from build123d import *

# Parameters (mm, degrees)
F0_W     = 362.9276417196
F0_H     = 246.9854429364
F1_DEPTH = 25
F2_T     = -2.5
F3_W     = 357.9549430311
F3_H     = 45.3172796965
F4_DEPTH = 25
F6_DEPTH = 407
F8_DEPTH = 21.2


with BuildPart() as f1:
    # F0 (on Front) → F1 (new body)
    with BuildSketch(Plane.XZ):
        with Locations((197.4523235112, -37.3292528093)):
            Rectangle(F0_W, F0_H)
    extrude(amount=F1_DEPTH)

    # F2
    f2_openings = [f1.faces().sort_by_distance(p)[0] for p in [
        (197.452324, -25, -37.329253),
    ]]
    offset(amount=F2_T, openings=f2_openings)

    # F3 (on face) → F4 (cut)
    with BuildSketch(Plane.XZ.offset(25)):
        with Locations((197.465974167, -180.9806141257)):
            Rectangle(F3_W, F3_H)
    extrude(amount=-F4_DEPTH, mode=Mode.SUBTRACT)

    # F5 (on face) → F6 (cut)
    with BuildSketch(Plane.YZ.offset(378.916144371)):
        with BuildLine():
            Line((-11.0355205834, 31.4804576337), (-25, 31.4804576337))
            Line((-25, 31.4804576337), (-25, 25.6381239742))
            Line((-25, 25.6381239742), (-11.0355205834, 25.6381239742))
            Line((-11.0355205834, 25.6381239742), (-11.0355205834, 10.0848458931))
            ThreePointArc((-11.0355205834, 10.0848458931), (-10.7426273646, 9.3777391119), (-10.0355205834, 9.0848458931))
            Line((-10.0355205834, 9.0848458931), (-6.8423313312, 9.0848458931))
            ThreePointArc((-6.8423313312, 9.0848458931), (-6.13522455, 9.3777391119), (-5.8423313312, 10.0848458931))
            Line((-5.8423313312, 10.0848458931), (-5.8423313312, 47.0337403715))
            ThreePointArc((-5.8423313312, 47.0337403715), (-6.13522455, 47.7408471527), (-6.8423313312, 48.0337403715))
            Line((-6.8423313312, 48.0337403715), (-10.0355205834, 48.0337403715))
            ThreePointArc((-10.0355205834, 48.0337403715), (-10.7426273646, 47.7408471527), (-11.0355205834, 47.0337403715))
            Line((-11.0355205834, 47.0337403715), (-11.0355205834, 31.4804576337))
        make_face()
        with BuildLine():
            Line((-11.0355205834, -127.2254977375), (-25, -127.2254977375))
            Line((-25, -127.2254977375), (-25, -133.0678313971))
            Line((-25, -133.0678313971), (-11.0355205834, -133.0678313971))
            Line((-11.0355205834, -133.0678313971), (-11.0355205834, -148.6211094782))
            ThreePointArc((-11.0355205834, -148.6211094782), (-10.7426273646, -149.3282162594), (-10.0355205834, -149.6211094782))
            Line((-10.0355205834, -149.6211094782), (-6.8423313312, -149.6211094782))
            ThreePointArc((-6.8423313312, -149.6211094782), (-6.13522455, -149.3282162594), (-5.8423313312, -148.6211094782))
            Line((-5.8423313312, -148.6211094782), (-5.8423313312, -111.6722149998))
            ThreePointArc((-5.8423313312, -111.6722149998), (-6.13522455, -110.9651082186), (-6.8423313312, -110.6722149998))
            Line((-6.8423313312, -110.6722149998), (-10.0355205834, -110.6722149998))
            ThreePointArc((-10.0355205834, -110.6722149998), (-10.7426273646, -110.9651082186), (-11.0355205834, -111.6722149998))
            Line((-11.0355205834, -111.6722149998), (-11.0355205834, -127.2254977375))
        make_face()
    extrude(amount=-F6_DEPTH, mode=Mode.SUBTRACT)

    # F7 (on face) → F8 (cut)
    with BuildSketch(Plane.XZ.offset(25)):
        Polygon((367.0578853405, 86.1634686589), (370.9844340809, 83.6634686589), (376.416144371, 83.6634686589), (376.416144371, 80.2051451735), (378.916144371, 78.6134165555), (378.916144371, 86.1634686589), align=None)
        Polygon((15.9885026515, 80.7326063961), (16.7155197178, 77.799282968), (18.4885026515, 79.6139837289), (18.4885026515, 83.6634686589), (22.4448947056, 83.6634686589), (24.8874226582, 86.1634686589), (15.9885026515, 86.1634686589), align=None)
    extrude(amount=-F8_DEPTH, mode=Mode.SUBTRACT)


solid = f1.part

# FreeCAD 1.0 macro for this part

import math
import FreeCAD as App
import Part
import Sketcher

V = App.Vector


def faces_at(feature, points):
    """Names of the faces that lie closest to the given points."""
    faces = feature.Shape.Faces
    near = lambda p: min(range(len(faces)), key=lambda i: faces[i].distToShape(Part.Vertex(*p))[0])
    return sorted({f"Face{near(p) + 1}" for p in points})

doc = App.newDocument("Part")
params = doc.addObject("Spreadsheet::Sheet", "Params")
for row, (alias, value) in enumerate([
    ("pad1_length", "25 mm"),
    ("thickness_wall", "2.5 mm"),
    ("pocket1_length", "25 mm"),
    ("sketch3_radius", "1 mm"),
    ("pocket2_length", "407 mm"),
    ("pocket3_length", "21.2 mm"),
], start=1):
    params.set(f"A{row}", alias)
    params.set(f"B{row}", "=" + value)
    params.setAlias(f"B{row}", alias)

body = doc.addObject("PartDesign::Body", "Body")

sketch1 = doc.addObject("Sketcher::SketchObject", "Sketch")
body.addObject(sketch1)
sketch1.AttachmentSupport = (doc.XZ_Plane, [""])
sketch1.MapMode = "FlatFace"
sketch1.addGeometry(Part.LineSegment(V(15.988503, 86.163469, 0), V(15.988503, -160.821974, 0)), False)
sketch1.addGeometry(Part.LineSegment(V(15.988503, -160.821974, 0), V(378.916144, -160.821974, 0)), False)
sketch1.addGeometry(Part.LineSegment(V(378.916144, -160.821974, 0), V(378.916144, 86.163469, 0)), False)
sketch1.addGeometry(Part.LineSegment(V(378.916144, 86.163469, 0), V(15.988503, 86.163469, 0)), False)
sketch1.addConstraint(Sketcher.Constraint("Coincident", 0, 2, 1, 1))
sketch1.addConstraint(Sketcher.Constraint("Coincident", 1, 2, 2, 1))
sketch1.addConstraint(Sketcher.Constraint("Coincident", 2, 2, 3, 1))
sketch1.addConstraint(Sketcher.Constraint("Coincident", 3, 2, 0, 1))
sketch1.addConstraint(Sketcher.Constraint("Vertical", 0))
sketch1.addConstraint(Sketcher.Constraint("Horizontal", 1))
sketch1.addConstraint(Sketcher.Constraint("Vertical", 2))
sketch1.addConstraint(Sketcher.Constraint("Horizontal", 3))
sketch1.addConstraint(Sketcher.Constraint("DistanceX", 1, 1, 1, 2, 362.927642))
sketch1.addConstraint(Sketcher.Constraint("DistanceY", 0, 2, 0, 1, 246.985443))
sketch1.addConstraint(Sketcher.Constraint("DistanceY", -1, 1, 2, 2, 86.163469))
sketch1.addConstraint(Sketcher.Constraint("DistanceX", -1, 1, 0, 2, 15.988503))
pad1 = doc.addObject("PartDesign::Pad", "Pad")
body.addObject(pad1)
pad1.Profile = sketch1
pad1.setExpression("Length", "Params.pad1_length")
doc.recompute()

thickness = doc.addObject("PartDesign::Thickness", "Thickness")
body.addObject(thickness)
thickness.Base = (pad1, faces_at(pad1, [(197.452, -25, -37.329)]))
thickness.setExpression("Value", "Params.thickness_wall")
thickness.Reversed = True
thickness.Join = "Arc"

sketch2 = doc.addObject("Sketcher::SketchObject", "Sketch001")
body.addObject(sketch2)
sketch2.AttachmentSupport = (doc.XZ_Plane, [""])
sketch2.MapMode = "FlatFace"
sketch2.AttachmentOffset = App.Placement(V(0, 0, 25), App.Rotation())
sketch2.addGeometry(Part.LineSegment(V(18.488503, -158.321974, 0), V(18.488503, -203.639254, 0)), False)
sketch2.addGeometry(Part.LineSegment(V(18.488503, -203.639254, 0), V(376.443446, -203.639254, 0)), False)
sketch2.addGeometry(Part.LineSegment(V(376.443446, -203.639254, 0), V(376.443446, -158.321974, 0)), False)
sketch2.addGeometry(Part.LineSegment(V(376.443446, -158.321974, 0), V(18.488503, -158.321974, 0)), False)
sketch2.addConstraint(Sketcher.Constraint("Coincident", 0, 2, 1, 1))
sketch2.addConstraint(Sketcher.Constraint("Coincident", 1, 2, 2, 1))
sketch2.addConstraint(Sketcher.Constraint("Coincident", 2, 2, 3, 1))
sketch2.addConstraint(Sketcher.Constraint("Coincident", 3, 2, 0, 1))
sketch2.addConstraint(Sketcher.Constraint("Vertical", 0))
sketch2.addConstraint(Sketcher.Constraint("Horizontal", 1))
sketch2.addConstraint(Sketcher.Constraint("Vertical", 2))
sketch2.addConstraint(Sketcher.Constraint("Horizontal", 3))
sketch2.addConstraint(Sketcher.Constraint("DistanceY", 0, 2, 0, 1, 45.31728))
sketch2.addConstraint(Sketcher.Constraint("DistanceX", 1, 1, 1, 2, 357.954943))
sketch2.addConstraint(Sketcher.Constraint("DistanceX", -1, 1, 0, 2, 18.488503))
sketch2.addConstraint(Sketcher.Constraint("DistanceY", 0, 2, -1, 1, 203.639254))
pocket1 = doc.addObject("PartDesign::Pocket", "Pocket")
body.addObject(pocket1)
pocket1.Profile = sketch2
pocket1.setExpression("Length", "Params.pocket1_length")

sketch3 = doc.addObject("Sketcher::SketchObject", "Sketch002")
body.addObject(sketch3)
sketch3.AttachmentSupport = (doc.YZ_Plane, [""])
sketch3.MapMode = "FlatFace"
sketch3.AttachmentOffset = App.Placement(V(0, 0, 378.916144), App.Rotation())
sketch3.addGeometry(Part.LineSegment(V(-11.035521, 31.480458, 0), V(-25, 31.480458, 0)), False)
sketch3.addGeometry(Part.LineSegment(V(-25, 31.480458, 0), V(-25, 25.638124, 0)), False)
sketch3.addGeometry(Part.LineSegment(V(-25, 25.638124, 0), V(-11.035521, 25.638124, 0)), False)
sketch3.addGeometry(Part.LineSegment(V(-11.035521, 25.638124, 0), V(-11.035521, 10.084846, 0)), False)
sketch3.addGeometry(Part.ArcOfCircle(Part.Circle(V(-10.035521, 10.084846, 0), V(0, 0, 1), 1), math.radians(180), math.radians(270)), False)
sketch3.addGeometry(Part.LineSegment(V(-10.035521, 9.084846, 0), V(-6.842331, 9.084846, 0)), False)
sketch3.addGeometry(Part.ArcOfCircle(Part.Circle(V(-6.842331, 10.084846, 0), V(0, 0, 1), 1), math.radians(-90), math.radians(0)), False)
sketch3.addGeometry(Part.LineSegment(V(-5.842331, 10.084846, 0), V(-5.842331, 47.03374, 0)), False)
sketch3.addGeometry(Part.ArcOfCircle(Part.Circle(V(-6.842331, 47.03374, 0), V(0, 0, 1), 1), math.radians(0), math.radians(90)), False)
sketch3.addGeometry(Part.LineSegment(V(-6.842331, 48.03374, 0), V(-10.035521, 48.03374, 0)), False)
sketch3.addGeometry(Part.ArcOfCircle(Part.Circle(V(-10.035521, 47.03374, 0), V(0, 0, 1), 1), math.radians(90), math.radians(180)), False)
sketch3.addGeometry(Part.LineSegment(V(-11.035521, 47.03374, 0), V(-11.035521, 31.480458, 0)), False)
sketch3.addGeometry(Part.LineSegment(V(-11.035521, -127.225498, 0), V(-25, -127.225498, 0)), False)
sketch3.addGeometry(Part.LineSegment(V(-25, -127.225498, 0), V(-25, -133.067831, 0)), False)
sketch3.addGeometry(Part.LineSegment(V(-25, -133.067831, 0), V(-11.035521, -133.067831, 0)), False)
sketch3.addGeometry(Part.LineSegment(V(-11.035521, -133.067831, 0), V(-11.035521, -148.621109, 0)), False)
sketch3.addGeometry(Part.ArcOfCircle(Part.Circle(V(-10.035521, -148.621109, 0), V(0, 0, 1), 1), math.radians(180), math.radians(270)), False)
sketch3.addGeometry(Part.LineSegment(V(-10.035521, -149.621109, 0), V(-6.842331, -149.621109, 0)), False)
sketch3.addGeometry(Part.ArcOfCircle(Part.Circle(V(-6.842331, -148.621109, 0), V(0, 0, 1), 1), math.radians(-90), math.radians(0)), False)
sketch3.addGeometry(Part.LineSegment(V(-5.842331, -148.621109, 0), V(-5.842331, -111.672215, 0)), False)
sketch3.addGeometry(Part.ArcOfCircle(Part.Circle(V(-6.842331, -111.672215, 0), V(0, 0, 1), 1), math.radians(0), math.radians(90)), False)
sketch3.addGeometry(Part.LineSegment(V(-6.842331, -110.672215, 0), V(-10.035521, -110.672215, 0)), False)
sketch3.addGeometry(Part.ArcOfCircle(Part.Circle(V(-10.035521, -111.672215, 0), V(0, 0, 1), 1), math.radians(90), math.radians(180)), False)
sketch3.addGeometry(Part.LineSegment(V(-11.035521, -111.672215, 0), V(-11.035521, -127.225498, 0)), False)
sketch3.addConstraint(Sketcher.Constraint("Coincident", 0, 2, 1, 1))
sketch3.addConstraint(Sketcher.Constraint("Coincident", 1, 2, 2, 1))
sketch3.addConstraint(Sketcher.Constraint("Coincident", 2, 2, 3, 1))
sketch3.addConstraint(Sketcher.Constraint("Tangent", 3, 2, 4, 1))
sketch3.addConstraint(Sketcher.Constraint("Tangent", 4, 2, 5, 1))
sketch3.addConstraint(Sketcher.Constraint("Tangent", 5, 2, 6, 1))
sketch3.addConstraint(Sketcher.Constraint("Tangent", 6, 2, 7, 1))
sketch3.addConstraint(Sketcher.Constraint("Tangent", 7, 2, 8, 1))
sketch3.addConstraint(Sketcher.Constraint("Tangent", 8, 2, 9, 1))
sketch3.addConstraint(Sketcher.Constraint("Tangent", 9, 2, 10, 1))
sketch3.addConstraint(Sketcher.Constraint("Tangent", 10, 2, 11, 1))
sketch3.addConstraint(Sketcher.Constraint("Coincident", 11, 2, 0, 1))
sketch3.addConstraint(Sketcher.Constraint("Coincident", 12, 2, 13, 1))
sketch3.addConstraint(Sketcher.Constraint("Coincident", 13, 2, 14, 1))
sketch3.addConstraint(Sketcher.Constraint("Coincident", 14, 2, 15, 1))
sketch3.addConstraint(Sketcher.Constraint("Tangent", 15, 2, 16, 1))
sketch3.addConstraint(Sketcher.Constraint("Tangent", 16, 2, 17, 1))
sketch3.addConstraint(Sketcher.Constraint("Tangent", 17, 2, 18, 1))
sketch3.addConstraint(Sketcher.Constraint("Tangent", 18, 2, 19, 1))
sketch3.addConstraint(Sketcher.Constraint("Tangent", 19, 2, 20, 1))
sketch3.addConstraint(Sketcher.Constraint("Tangent", 20, 2, 21, 1))
sketch3.addConstraint(Sketcher.Constraint("Tangent", 21, 2, 22, 1))
sketch3.addConstraint(Sketcher.Constraint("Tangent", 22, 2, 23, 1))
sketch3.addConstraint(Sketcher.Constraint("Coincident", 23, 2, 12, 1))
sketch3.addConstraint(Sketcher.Constraint("Horizontal", 0))
sketch3.addConstraint(Sketcher.Constraint("Vertical", 1))
sketch3.addConstraint(Sketcher.Constraint("Horizontal", 2))
sketch3.addConstraint(Sketcher.Constraint("Vertical", 3))
sketch3.addConstraint(Sketcher.Constraint("Horizontal", 5))
sketch3.addConstraint(Sketcher.Constraint("Vertical", 7))
sketch3.addConstraint(Sketcher.Constraint("Horizontal", 9))
sketch3.addConstraint(Sketcher.Constraint("Vertical", 11))
sketch3.addConstraint(Sketcher.Constraint("Horizontal", 12))
sketch3.addConstraint(Sketcher.Constraint("Vertical", 13))
sketch3.addConstraint(Sketcher.Constraint("Horizontal", 14))
sketch3.addConstraint(Sketcher.Constraint("Vertical", 15))
sketch3.addConstraint(Sketcher.Constraint("Horizontal", 17))
sketch3.addConstraint(Sketcher.Constraint("Vertical", 19))
sketch3.addConstraint(Sketcher.Constraint("Horizontal", 21))
sketch3.addConstraint(Sketcher.Constraint("Vertical", 23))
sketch3.addConstraint(Sketcher.Constraint("Equal", 4, 6))
sketch3.addConstraint(Sketcher.Constraint("Equal", 6, 8))
sketch3.addConstraint(Sketcher.Constraint("Equal", 8, 10))
sketch3.addConstraint(Sketcher.Constraint("Equal", 10, 16))
sketch3.addConstraint(Sketcher.Constraint("Equal", 16, 18))
sketch3.addConstraint(Sketcher.Constraint("Equal", 18, 20))
sketch3.addConstraint(Sketcher.Constraint("Equal", 20, 22))
sketch3.addConstraint(Sketcher.Constraint("Vertical", 4, 3, 10, 3))
sketch3.addConstraint(Sketcher.Constraint("Vertical", 10, 3, 16, 3))
sketch3.addConstraint(Sketcher.Constraint("Vertical", 8, 3, 18, 3))
sketch3.addConstraint(Sketcher.Constraint("Vertical", 16, 3, 22, 3))
sketch3.addConstraint(Sketcher.Constraint("Vertical", 1, 2, 12, 2))
sketch3.addConstraint(Sketcher.Constraint("Equal", 1, 13))
sketch3.addConstraint(Sketcher.Constraint("Equal", 3, 15))
sketch3.addConstraint(Sketcher.Constraint("Equal", 7, 19))
sketch3.addConstraint(Sketcher.Constraint("Radius", 4, 1.0))
sketch3.addConstraint(Sketcher.Constraint("DistanceX", 0, 2, -1, 1, 25.0))
sketch3.addConstraint(Sketcher.Constraint("DistanceX", 0, 2, 0, 1, 13.964479))
sketch3.addConstraint(Sketcher.Constraint("DistanceX", 5, 1, 5, 2, 3.193189))
sketch3.addConstraint(Sketcher.Constraint("DistanceY", 3, 2, 3, 1, 15.553278))
sketch3.addConstraint(Sketcher.Constraint("DistanceY", 1, 2, 1, 1, 5.842334))
sketch3.addConstraint(Sketcher.Constraint("DistanceY", 7, 1, 7, 2, 36.948894))
sketch3.addConstraint(Sketcher.Constraint("DistanceY", -1, 1, 8, 3, 47.03374))
sketch3.addConstraint(Sketcher.Constraint("DistanceY", 16, 3, -1, 1, 148.621109))
sketch3.setExpression("Constraints[55]", "Params.sketch3_radius")
pocket2 = doc.addObject("PartDesign::Pocket", "Pocket001")
body.addObject(pocket2)
pocket2.Profile = sketch3
pocket2.setExpression("Length", "Params.pocket2_length")

sketch4 = doc.addObject("Sketcher::SketchObject", "Sketch003")
body.addObject(sketch4)
sketch4.AttachmentSupport = (doc.XZ_Plane, [""])
sketch4.MapMode = "FlatFace"
sketch4.AttachmentOffset = App.Placement(V(0, 0, 25), App.Rotation())
sketch4.addGeometry(Part.LineSegment(V(367.057885, 86.163469, 0), V(370.984434, 83.663469, 0)), False)
sketch4.addGeometry(Part.LineSegment(V(370.984434, 83.663469, 0), V(376.416144, 83.663469, 0)), False)
sketch4.addGeometry(Part.LineSegment(V(376.416144, 83.663469, 0), V(376.416144, 80.205145, 0)), False)
sketch4.addGeometry(Part.LineSegment(V(376.416144, 80.205145, 0), V(378.916144, 78.613417, 0)), False)
sketch4.addGeometry(Part.LineSegment(V(378.916144, 78.613417, 0), V(378.916144, 86.163469, 0)), False)
sketch4.addGeometry(Part.LineSegment(V(378.916144, 86.163469, 0), V(367.057885, 86.163469, 0)), False)
sketch4.addGeometry(Part.LineSegment(V(15.988503, 80.732606, 0), V(16.71552, 77.799283, 0)), False)
sketch4.addGeometry(Part.LineSegment(V(16.71552, 77.799283, 0), V(18.488503, 79.613984, 0)), False)
sketch4.addGeometry(Part.LineSegment(V(18.488503, 79.613984, 0), V(18.488503, 83.663469, 0)), False)
sketch4.addGeometry(Part.LineSegment(V(18.488503, 83.663469, 0), V(22.444895, 83.663469, 0)), False)
sketch4.addGeometry(Part.LineSegment(V(22.444895, 83.663469, 0), V(24.887423, 86.163469, 0)), False)
sketch4.addGeometry(Part.LineSegment(V(24.887423, 86.163469, 0), V(15.988503, 86.163469, 0)), False)
sketch4.addGeometry(Part.LineSegment(V(15.988503, 86.163469, 0), V(15.988503, 80.732606, 0)), False)
sketch4.addConstraint(Sketcher.Constraint("Coincident", 0, 2, 1, 1))
sketch4.addConstraint(Sketcher.Constraint("Coincident", 1, 2, 2, 1))
sketch4.addConstraint(Sketcher.Constraint("Coincident", 2, 2, 3, 1))
sketch4.addConstraint(Sketcher.Constraint("Coincident", 3, 2, 4, 1))
sketch4.addConstraint(Sketcher.Constraint("Coincident", 4, 2, 5, 1))
sketch4.addConstraint(Sketcher.Constraint("Coincident", 5, 2, 0, 1))
sketch4.addConstraint(Sketcher.Constraint("Coincident", 6, 2, 7, 1))
sketch4.addConstraint(Sketcher.Constraint("Coincident", 7, 2, 8, 1))
sketch4.addConstraint(Sketcher.Constraint("Coincident", 8, 2, 9, 1))
sketch4.addConstraint(Sketcher.Constraint("Coincident", 9, 2, 10, 1))
sketch4.addConstraint(Sketcher.Constraint("Coincident", 10, 2, 11, 1))
sketch4.addConstraint(Sketcher.Constraint("Coincident", 11, 2, 12, 1))
sketch4.addConstraint(Sketcher.Constraint("Coincident", 12, 2, 6, 1))
sketch4.addConstraint(Sketcher.Constraint("Horizontal", 1))
sketch4.addConstraint(Sketcher.Constraint("Vertical", 2))
sketch4.addConstraint(Sketcher.Constraint("Vertical", 4))
sketch4.addConstraint(Sketcher.Constraint("Horizontal", 5))
sketch4.addConstraint(Sketcher.Constraint("Vertical", 8))
sketch4.addConstraint(Sketcher.Constraint("Horizontal", 9))
sketch4.addConstraint(Sketcher.Constraint("Horizontal", 11))
sketch4.addConstraint(Sketcher.Constraint("Vertical", 12))
sketch4.addConstraint(Sketcher.Constraint("Parallel", 0, 3))
sketch4.addConstraint(Sketcher.Constraint("Parallel", 7, 10))
sketch4.addConstraint(Sketcher.Constraint("Horizontal", 1, 2, 8, 2))
sketch4.addConstraint(Sketcher.Constraint("Horizontal", 5, 2, 10, 2))
sketch4.addConstraint(Sketcher.Constraint("DistanceX", 2, 2, 3, 2, 2.5))
sketch4.addConstraint(Sketcher.Constraint("DistanceY", 1, 2, 4, 2, 2.5))
sketch4.addConstraint(Sketcher.Constraint("DistanceX", 11, 2, 8, 2, 2.5))
sketch4.addConstraint(Sketcher.Constraint("DistanceX", 1, 1, 1, 2, 5.43171))
sketch4.addConstraint(Sketcher.Constraint("DistanceX", 5, 2, 5, 1, 11.858259))
sketch4.addConstraint(Sketcher.Constraint("DistanceX", 11, 2, 11, 1, 8.89892))
sketch4.addConstraint(Sketcher.Constraint("DistanceY", 6, 2, 7, 2, 1.814701))
sketch4.addConstraint(Sketcher.Constraint("Distance", 10, 3.495131))
sketch4.addConstraint(Sketcher.Constraint("DistanceY", 2, 2, 2, 1, 3.458323))
sketch4.addConstraint(Sketcher.Constraint("DistanceY", 8, 1, 8, 2, 4.049485))
sketch4.addConstraint(Sketcher.Constraint("DistanceY", 12, 2, 12, 1, 5.430862))
sketch4.addConstraint(Sketcher.Constraint("DistanceY", -1, 1, 0, 2, 83.663469))
sketch4.addConstraint(Sketcher.Constraint("DistanceX", -1, 1, 6, 2, 16.71552))
sketch4.addConstraint(Sketcher.Constraint("DistanceX", 7, 2, 0, 2, 352.495931))
pocket3 = doc.addObject("PartDesign::Pocket", "Pocket002")
body.addObject(pocket3)
pocket3.Profile = sketch4
pocket3.setExpression("Length", "Params.pocket3_length")

doc.recompute()
